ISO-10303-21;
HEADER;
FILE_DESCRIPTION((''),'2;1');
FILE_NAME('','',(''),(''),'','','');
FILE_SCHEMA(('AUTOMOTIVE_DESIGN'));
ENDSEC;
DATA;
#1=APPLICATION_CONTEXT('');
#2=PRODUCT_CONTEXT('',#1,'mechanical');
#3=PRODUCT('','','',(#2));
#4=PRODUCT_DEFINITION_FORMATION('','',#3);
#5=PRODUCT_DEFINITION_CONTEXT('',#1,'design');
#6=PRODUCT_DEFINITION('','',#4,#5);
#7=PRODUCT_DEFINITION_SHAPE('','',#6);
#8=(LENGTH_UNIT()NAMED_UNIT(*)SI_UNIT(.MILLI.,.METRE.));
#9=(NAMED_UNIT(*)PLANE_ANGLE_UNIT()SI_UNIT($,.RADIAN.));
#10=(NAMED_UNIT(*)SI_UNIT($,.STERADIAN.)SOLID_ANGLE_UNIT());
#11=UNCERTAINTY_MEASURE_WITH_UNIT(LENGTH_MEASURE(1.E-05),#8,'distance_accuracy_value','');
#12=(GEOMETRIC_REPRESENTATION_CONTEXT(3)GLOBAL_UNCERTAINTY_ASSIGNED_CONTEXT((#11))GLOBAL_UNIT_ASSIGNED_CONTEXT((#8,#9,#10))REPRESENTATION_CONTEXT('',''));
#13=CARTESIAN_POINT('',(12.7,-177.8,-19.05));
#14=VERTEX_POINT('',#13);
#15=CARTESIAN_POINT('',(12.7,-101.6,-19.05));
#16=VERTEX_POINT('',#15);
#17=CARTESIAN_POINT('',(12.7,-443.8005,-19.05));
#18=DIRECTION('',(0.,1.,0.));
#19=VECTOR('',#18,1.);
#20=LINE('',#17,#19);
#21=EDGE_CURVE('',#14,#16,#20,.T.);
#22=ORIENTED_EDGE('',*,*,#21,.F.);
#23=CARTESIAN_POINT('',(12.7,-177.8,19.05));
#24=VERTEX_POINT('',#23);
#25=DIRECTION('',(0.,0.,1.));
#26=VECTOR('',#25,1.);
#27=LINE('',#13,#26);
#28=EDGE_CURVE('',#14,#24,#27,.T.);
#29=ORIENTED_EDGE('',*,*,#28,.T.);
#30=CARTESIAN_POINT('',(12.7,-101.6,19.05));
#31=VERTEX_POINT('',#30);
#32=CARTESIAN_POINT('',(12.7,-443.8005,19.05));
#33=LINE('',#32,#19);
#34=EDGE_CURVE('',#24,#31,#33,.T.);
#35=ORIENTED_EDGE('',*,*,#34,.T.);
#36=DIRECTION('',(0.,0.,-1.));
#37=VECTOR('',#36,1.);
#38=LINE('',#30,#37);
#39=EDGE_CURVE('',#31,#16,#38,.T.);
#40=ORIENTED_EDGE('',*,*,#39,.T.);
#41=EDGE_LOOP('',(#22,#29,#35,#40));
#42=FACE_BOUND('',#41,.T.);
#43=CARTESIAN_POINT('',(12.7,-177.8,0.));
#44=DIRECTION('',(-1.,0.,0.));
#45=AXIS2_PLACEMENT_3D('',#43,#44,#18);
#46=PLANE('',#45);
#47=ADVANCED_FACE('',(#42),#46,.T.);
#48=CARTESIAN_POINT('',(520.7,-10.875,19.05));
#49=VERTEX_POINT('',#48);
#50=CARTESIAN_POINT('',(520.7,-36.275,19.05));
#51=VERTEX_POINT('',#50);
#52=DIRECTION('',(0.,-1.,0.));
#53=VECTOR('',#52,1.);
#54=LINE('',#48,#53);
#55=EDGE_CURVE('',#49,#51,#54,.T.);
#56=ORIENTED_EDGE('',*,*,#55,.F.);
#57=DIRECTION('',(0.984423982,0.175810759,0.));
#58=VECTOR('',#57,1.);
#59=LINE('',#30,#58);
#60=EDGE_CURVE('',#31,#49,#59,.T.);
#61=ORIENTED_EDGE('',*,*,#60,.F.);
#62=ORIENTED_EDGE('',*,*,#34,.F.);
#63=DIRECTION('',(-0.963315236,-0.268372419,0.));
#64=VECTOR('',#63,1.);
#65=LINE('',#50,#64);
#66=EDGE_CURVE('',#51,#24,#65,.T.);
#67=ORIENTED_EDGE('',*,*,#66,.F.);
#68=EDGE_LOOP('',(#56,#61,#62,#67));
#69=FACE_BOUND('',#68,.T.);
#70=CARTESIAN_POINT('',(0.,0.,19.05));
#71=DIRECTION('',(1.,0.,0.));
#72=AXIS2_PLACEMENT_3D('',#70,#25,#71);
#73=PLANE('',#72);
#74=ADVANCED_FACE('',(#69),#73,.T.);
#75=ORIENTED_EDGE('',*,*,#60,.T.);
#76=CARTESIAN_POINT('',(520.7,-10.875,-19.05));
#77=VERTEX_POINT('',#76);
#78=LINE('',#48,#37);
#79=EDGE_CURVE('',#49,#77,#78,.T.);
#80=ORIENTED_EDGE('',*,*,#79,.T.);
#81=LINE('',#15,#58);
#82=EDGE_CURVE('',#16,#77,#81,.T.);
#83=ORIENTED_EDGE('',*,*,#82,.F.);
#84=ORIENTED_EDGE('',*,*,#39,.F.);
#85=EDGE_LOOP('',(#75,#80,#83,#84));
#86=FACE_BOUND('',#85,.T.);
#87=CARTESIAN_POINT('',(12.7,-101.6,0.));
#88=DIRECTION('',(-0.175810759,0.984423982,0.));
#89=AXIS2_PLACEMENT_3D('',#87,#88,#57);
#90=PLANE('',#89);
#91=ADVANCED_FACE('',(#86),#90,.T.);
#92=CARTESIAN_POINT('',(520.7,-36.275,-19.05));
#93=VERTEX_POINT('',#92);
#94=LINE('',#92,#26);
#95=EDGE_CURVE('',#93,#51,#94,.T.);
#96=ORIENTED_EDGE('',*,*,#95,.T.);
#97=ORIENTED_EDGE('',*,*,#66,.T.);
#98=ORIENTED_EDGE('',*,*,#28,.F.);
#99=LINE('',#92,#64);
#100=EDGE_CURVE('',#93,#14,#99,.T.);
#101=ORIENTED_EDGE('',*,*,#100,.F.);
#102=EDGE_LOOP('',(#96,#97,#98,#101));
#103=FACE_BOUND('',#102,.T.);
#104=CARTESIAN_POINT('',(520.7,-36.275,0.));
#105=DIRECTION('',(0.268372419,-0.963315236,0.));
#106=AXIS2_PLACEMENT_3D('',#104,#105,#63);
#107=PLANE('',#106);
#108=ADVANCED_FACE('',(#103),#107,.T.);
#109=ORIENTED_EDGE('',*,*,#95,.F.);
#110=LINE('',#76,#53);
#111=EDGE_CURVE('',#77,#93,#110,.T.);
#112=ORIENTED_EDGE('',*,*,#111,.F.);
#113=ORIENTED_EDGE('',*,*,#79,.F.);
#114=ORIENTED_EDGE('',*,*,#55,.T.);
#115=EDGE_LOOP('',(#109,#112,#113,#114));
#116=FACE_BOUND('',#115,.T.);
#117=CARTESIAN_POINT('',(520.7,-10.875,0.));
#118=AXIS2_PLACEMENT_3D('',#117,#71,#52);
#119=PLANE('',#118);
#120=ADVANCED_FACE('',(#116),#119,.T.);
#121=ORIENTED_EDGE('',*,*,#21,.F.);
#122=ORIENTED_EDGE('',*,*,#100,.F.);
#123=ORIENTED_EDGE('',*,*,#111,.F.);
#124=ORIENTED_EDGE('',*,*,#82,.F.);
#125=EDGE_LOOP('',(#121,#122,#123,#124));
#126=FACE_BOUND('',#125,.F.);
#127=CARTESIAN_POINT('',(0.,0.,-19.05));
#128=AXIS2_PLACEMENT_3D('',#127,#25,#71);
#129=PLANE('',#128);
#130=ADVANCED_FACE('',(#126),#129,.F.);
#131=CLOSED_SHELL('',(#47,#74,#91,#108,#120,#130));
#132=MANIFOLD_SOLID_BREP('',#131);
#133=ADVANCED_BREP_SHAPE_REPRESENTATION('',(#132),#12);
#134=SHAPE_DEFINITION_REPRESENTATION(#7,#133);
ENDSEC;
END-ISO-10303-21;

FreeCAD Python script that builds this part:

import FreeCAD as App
import Part
import Sketcher
from FreeCAD import Vector
Q = App.Units.Quantity

doc = App.newDocument("Part")
body = doc.addObject("PartDesign::Body", "Body")

sketch1 = doc.addObject("Sketcher::SketchObject", "Sketch")
body.addObject(sketch1)
sketch1.AttachmentSupport = (doc.XY_Plane, [""])
sketch1.MapMode = "FlatFace"
sketch1.addGeometry([
    Part.LineSegment(Vector(13, -102, 0), Vector(13, -178, 0)),
    Part.LineSegment(Vector(13, -178, 0), Vector(521, -36, 0)),
    Part.LineSegment(Vector(521, -36, 0), Vector(521, -11, 0)),
    Part.LineSegment(Vector(521, -11, 0), Vector(13, -102, 0)),
], False)
sketch1.addConstraint([
    Sketcher.Constraint("Coincident", 0, 2, 1, 1),
    Sketcher.Constraint("Coincident", 1, 2, 2, 1),
    Sketcher.Constraint("Coincident", 2, 2, 3, 1),
    Sketcher.Constraint("Coincident", 3, 2, 0, 1),
    Sketcher.Constraint("Vertical", 0),
    Sketcher.Constraint("Vertical", 2),
    Sketcher.Constraint("DistanceY", 0, 2, 0, 1, Q("3 in")),
    Sketcher.Constraint("DistanceY", 2, 1, 2, 2, Q("1 in")),
    Sketcher.Constraint("DistanceY", 3, 2, -1, 1, Q("4 in")),
    Sketcher.Constraint("DistanceX", 0, 2, 1, 2, Q("20 in")),
    Sketcher.Constraint("DistanceX", -1, 1, 0, 2, Q("0.5 in")),
    Sketcher.Constraint("Distance", 1, 527.3455),
])
pad1 = doc.addObject("PartDesign::Pad", "Pad")
body.addObject(pad1)
pad1.Profile = sketch1
pad1.Length = Q("1.5 in")
pad1.Midplane = True

doc.recompute()
